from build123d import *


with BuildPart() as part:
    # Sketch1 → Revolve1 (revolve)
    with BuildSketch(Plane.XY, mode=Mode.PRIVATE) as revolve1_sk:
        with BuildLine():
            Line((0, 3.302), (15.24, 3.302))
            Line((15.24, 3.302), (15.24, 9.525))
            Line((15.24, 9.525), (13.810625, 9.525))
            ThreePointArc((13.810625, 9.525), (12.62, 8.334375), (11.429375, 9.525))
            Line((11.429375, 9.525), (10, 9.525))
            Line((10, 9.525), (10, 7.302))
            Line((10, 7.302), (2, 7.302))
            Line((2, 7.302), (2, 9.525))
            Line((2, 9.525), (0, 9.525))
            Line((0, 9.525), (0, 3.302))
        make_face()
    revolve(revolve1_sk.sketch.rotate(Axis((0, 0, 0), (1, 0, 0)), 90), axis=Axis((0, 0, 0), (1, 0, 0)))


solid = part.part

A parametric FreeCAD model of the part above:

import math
import FreeCAD as App
import Part
import Sketcher

V = App.Vector
Q = App.Units.Quantity

doc = App.newDocument("Part")
body = doc.addObject("PartDesign::Body", "Body")

# Sketch on XY plane
sketch1 = body.newObject("Sketcher::SketchObject", "Sketch")
sketch1.AttachmentSupport = (doc.getObject("XY_Plane"), [""])
sketch1.MapMode = "FlatFace"
sketch1.addGeometry([
    Part.LineSegment(V(0, 3.3, 0), V(15.2, 3.3, 0)),  # 0
    Part.LineSegment(V(15.2, 3.3, 0), V(15.2, 9.5, 0)),  # 1
    Part.LineSegment(V(15.2, 9.5, 0), V(13.8, 9.5, 0)),  # 2
    Part.ArcOfCircle(Part.Circle(V(12.6, 9.5, 0), V(0, 0, 1), 1.2), math.radians(180), math.radians(360)),  # 3
    Part.LineSegment(V(11.4, 9.5, 0), V(10, 9.5, 0)),  # 4
    Part.LineSegment(V(10, 9.5, 0), V(10, 7.3, 0)),  # 5
    Part.LineSegment(V(10, 7.3, 0), V(2, 7.3, 0)),  # 6
    Part.LineSegment(V(2, 7.3, 0), V(2, 9.5, 0)),  # 7
    Part.LineSegment(V(2, 9.5, 0), V(0, 9.5, 0)),  # 8
    Part.LineSegment(V(0, 9.5, 0), V(0, 3.3, 0)),  # 9
], False)
sketch1.addConstraint([
    Sketcher.Constraint("Coincident", 0, 2, 1, 1),
    Sketcher.Constraint("Coincident", 1, 2, 2, 1),
    Sketcher.Constraint("Coincident", 2, 2, 3, 2),
    Sketcher.Constraint("Coincident", 3, 1, 4, 1),
    Sketcher.Constraint("Coincident", 4, 2, 5, 1),
    Sketcher.Constraint("Coincident", 5, 2, 6, 1),
    Sketcher.Constraint("Coincident", 6, 2, 7, 1),
    Sketcher.Constraint("Coincident", 7, 2, 8, 1),
    Sketcher.Constraint("Coincident", 8, 2, 9, 1),
    Sketcher.Constraint("Coincident", 9, 2, 0, 1),
    Sketcher.Constraint("Horizontal", 0),
    Sketcher.Constraint("Vertical", 1),
    Sketcher.Constraint("Horizontal", 2),
    Sketcher.Constraint("Horizontal", 4),
    Sketcher.Constraint("Vertical", 5),
    Sketcher.Constraint("Horizontal", 6),
    Sketcher.Constraint("Vertical", 7),
    Sketcher.Constraint("Horizontal", 8),
    Sketcher.Constraint("Vertical", 9),
    Sketcher.Constraint("PointOnObject", 8, 2, -2),
    Sketcher.Constraint("Horizontal", 3, 3, 1, 2),
    Sketcher.Constraint("Horizontal", 2, 2, 3, 1),
    Sketcher.Constraint("Horizontal", 4, 2, 7, 2),
    Sketcher.Constraint("Equal", 2, 4),
    Sketcher.Constraint("DistanceX", 0, 1, 0, 2, Q("0.6 in")),
    Sketcher.Constraint("Radius", 3, Q("0.046875 in")),
    Sketcher.Constraint("DistanceY", 1, 1, 1, 2, Q("0.245 in")),
    Sketcher.Constraint("DistanceY", -1, 1, 0, 2, Q("0.13 in")),
    Sketcher.Constraint("DistanceX", 6, 2, 6, 1, 8.0),
    Sketcher.Constraint("DistanceX", 8, 2, 8, 1, 2.0),
    Sketcher.Constraint("DistanceY", 5, 2, 5, 1, 2.223),
])
revolution = body.newObject("PartDesign::Revolution", "Revolution")
revolution.Profile = sketch1
revolution.ReferenceAxis = (sketch1, ["H_Axis"])
revolution.Angle = 360

doc.recompute()
